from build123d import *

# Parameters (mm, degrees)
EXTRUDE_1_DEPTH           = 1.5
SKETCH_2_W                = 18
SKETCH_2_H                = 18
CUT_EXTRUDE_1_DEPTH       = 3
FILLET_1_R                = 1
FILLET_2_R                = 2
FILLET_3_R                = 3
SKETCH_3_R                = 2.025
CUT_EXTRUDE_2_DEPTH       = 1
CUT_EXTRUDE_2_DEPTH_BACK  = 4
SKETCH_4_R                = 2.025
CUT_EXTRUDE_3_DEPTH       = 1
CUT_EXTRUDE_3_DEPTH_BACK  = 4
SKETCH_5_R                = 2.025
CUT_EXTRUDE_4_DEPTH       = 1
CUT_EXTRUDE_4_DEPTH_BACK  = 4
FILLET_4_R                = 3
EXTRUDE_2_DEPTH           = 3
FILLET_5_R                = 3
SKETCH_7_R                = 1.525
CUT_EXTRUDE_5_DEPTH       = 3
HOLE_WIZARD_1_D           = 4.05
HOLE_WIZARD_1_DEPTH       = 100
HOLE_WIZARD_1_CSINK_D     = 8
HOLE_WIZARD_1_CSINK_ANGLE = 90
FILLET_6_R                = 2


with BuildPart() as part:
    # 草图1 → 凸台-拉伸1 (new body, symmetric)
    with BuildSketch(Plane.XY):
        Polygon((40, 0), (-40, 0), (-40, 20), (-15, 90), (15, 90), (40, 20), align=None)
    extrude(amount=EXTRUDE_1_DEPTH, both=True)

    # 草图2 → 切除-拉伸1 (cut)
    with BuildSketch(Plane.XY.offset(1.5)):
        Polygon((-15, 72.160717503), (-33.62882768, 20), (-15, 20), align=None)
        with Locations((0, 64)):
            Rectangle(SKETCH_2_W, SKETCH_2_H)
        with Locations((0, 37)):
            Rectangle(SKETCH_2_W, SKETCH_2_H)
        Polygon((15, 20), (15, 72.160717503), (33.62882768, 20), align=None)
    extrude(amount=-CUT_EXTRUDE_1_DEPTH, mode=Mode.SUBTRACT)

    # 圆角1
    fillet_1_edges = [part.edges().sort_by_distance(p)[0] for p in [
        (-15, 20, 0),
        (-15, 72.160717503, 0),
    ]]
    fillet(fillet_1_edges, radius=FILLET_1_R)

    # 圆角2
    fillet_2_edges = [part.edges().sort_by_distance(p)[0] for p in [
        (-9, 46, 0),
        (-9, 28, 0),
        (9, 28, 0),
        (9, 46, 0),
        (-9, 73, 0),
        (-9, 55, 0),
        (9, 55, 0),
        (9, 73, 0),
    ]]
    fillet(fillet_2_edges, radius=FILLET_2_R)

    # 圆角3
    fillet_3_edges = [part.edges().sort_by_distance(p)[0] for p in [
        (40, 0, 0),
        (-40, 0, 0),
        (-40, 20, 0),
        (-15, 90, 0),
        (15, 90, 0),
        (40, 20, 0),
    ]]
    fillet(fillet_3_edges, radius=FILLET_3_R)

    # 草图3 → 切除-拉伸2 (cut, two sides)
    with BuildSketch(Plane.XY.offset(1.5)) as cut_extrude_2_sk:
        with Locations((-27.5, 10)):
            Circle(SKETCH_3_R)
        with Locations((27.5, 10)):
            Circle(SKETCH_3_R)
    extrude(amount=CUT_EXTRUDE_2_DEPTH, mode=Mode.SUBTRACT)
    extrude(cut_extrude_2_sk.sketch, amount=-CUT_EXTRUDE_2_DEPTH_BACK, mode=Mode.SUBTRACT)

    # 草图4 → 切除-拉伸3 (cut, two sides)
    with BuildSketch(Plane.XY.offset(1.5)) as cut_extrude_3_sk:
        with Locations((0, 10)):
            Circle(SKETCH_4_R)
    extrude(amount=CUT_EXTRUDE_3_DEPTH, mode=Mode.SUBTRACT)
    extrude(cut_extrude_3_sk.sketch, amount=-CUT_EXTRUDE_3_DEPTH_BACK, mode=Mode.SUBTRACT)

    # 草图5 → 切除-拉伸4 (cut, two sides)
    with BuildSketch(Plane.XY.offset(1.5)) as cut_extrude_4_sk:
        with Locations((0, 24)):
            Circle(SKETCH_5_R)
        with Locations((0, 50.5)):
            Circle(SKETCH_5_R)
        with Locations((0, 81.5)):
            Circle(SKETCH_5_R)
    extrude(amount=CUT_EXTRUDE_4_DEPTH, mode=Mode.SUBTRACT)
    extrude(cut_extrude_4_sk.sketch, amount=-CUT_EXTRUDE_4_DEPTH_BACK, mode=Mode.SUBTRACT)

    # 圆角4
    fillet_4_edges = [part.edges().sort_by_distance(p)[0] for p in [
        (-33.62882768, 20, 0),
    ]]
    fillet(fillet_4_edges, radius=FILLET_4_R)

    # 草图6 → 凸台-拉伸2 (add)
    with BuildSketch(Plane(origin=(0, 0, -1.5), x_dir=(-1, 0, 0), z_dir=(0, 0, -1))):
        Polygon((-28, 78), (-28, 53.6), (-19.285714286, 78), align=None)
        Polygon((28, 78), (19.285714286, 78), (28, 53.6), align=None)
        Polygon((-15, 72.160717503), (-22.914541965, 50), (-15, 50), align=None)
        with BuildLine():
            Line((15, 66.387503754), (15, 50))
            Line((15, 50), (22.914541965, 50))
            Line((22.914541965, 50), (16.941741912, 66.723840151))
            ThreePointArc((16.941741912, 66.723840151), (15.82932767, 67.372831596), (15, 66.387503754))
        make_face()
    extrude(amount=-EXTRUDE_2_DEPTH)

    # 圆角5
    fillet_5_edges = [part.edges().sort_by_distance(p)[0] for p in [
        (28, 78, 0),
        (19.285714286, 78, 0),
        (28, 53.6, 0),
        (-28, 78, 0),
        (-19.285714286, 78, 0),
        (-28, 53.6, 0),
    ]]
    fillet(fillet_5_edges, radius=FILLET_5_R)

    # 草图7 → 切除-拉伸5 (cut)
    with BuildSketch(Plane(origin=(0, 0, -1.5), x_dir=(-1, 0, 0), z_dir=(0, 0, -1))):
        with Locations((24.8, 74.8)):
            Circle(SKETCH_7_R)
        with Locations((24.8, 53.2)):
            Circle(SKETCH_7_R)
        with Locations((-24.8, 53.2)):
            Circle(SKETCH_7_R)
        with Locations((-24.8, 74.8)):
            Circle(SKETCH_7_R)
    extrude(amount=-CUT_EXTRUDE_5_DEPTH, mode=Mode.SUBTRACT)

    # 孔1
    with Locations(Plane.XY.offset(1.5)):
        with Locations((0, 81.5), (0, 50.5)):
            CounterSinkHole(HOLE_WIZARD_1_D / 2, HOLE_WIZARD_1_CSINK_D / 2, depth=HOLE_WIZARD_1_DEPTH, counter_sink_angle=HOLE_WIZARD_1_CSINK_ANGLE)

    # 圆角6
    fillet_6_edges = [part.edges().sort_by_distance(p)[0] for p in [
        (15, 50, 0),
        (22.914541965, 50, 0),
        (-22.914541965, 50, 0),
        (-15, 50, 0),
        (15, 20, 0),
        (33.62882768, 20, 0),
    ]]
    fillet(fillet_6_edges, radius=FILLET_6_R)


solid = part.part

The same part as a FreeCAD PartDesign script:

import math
import FreeCAD as App
import Part
import Sketcher

V = App.Vector
Q = App.Units.Quantity


def edges_at(feature, points):
    """Names of the edges that pass closest to the given points."""
    edges = feature.Shape.Edges
    near = lambda p: min(range(len(edges)), key=lambda i: edges[i].distToShape(Part.Vertex(*p))[0])
    return sorted({f"Edge{near(p) + 1}" for p in points})


def add_polygon(sketch, points):
    """Adds a closed chain of lines whose ends are joined by coincident constraints."""
    first, n = sketch.GeometryCount, len(points)
    for a, b in zip(points, points[1:] + points[:1]):
        sketch.addGeometry(Part.LineSegment(App.Vector(*a, 0), App.Vector(*b, 0)), False)
    for i in range(n):
        sketch.addConstraint(Sketcher.Constraint("Coincident", first + i, 2, first + (i + 1) % n, 1))

doc = App.newDocument("Part")
body = doc.addObject("PartDesign::Body", "Body")

# Sketch on XY plane
sketch1 = body.newObject("Sketcher::SketchObject", "Sketch")
sketch1.AttachmentSupport = (doc.getObject("XY_Plane"), [""])
sketch1.MapMode = "FlatFace"
add_polygon(sketch1, [(-40, 0), (40, 0), (40, 20), (15, 90), (-15, 90), (-40, 20)])  # lines 0-5
sketch1.addConstraint(Sketcher.Constraint("Horizontal", 0))
sketch1.addConstraint(Sketcher.Constraint("Vertical", 1))
sketch1.addConstraint(Sketcher.Constraint("Horizontal", 3))
sketch1.addConstraint(Sketcher.Constraint("Vertical", 5))
sketch1.addConstraint(Sketcher.Constraint("Symmetric", 0, 2, 5, 2, -1, 1))
sketch1.addConstraint(Sketcher.Constraint("Horizontal", 1, 2, 4, 2))
sketch1.addConstraint(Sketcher.Constraint("Equal", 2, 4))
sketch1.addConstraint(Sketcher.Constraint("DistanceX", 0, 1, 0, 2, Q("80 mm")))
sketch1.addConstraint(Sketcher.Constraint("DistanceX", 3, 2, 3, 1, Q("30 mm")))
sketch1.addConstraint(Sketcher.Constraint("DistanceY", 1, 1, 1, 2, Q("20 mm")))
sketch1.addConstraint(Sketcher.Constraint("DistanceY", -1, 1, 2, 2, Q("90 mm")))
pad1 = body.newObject("PartDesign::Pad", "Pad")
pad1.Profile = sketch1
pad1.Length = 3
pad1.Midplane = True

# Sketch on XY plane
sketch2 = body.newObject("Sketcher::SketchObject", "Sketch001")
sketch2.AttachmentSupport = (doc.getObject("XY_Plane"), [""])
sketch2.MapMode = "FlatFace"
sketch2.AttachmentOffset = App.Placement(V(0, 0, 1.5), App.Rotation())
add_polygon(sketch2, [(-15, 72), (-34, 20), (-15, 20)])  # lines 0-2
add_polygon(sketch2, [(-9, 73), (-9, 55), (9, 55), (9, 73)])  # lines 3-6
add_polygon(sketch2, [(-9, 46), (-9, 28), (9, 28), (9, 46)])  # lines 7-10
add_polygon(sketch2, [(15, 72), (15, 20), (34, 20)])  # lines 11-13
sketch2.addConstraint(Sketcher.Constraint("Horizontal", 1))
sketch2.addConstraint(Sketcher.Constraint("Vertical", 2))
sketch2.addConstraint(Sketcher.Constraint("Vertical", 3))
sketch2.addConstraint(Sketcher.Constraint("Horizontal", 4))
sketch2.addConstraint(Sketcher.Constraint("Vertical", 5))
sketch2.addConstraint(Sketcher.Constraint("Horizontal", 6))
sketch2.addConstraint(Sketcher.Constraint("Vertical", 7))
sketch2.addConstraint(Sketcher.Constraint("Horizontal", 8))
sketch2.addConstraint(Sketcher.Constraint("Vertical", 9))
sketch2.addConstraint(Sketcher.Constraint("Horizontal", 10))
sketch2.addConstraint(Sketcher.Constraint("Vertical", 11))
sketch2.addConstraint(Sketcher.Constraint("Horizontal", 12))
sketch2.addConstraint(Sketcher.Constraint("Symmetric", 1, 2, 11, 2, -2))
sketch2.addConstraint(Sketcher.Constraint("Horizontal", 2, 2, 13, 2))
sketch2.addConstraint(Sketcher.Constraint("Vertical", 6, 2, 7, 2))
sketch2.addConstraint(Sketcher.Constraint("Vertical", 5, 2, 8, 2))
sketch2.addConstraint(Sketcher.Constraint("Equal", 1, 12))
sketch2.addConstraint(Sketcher.Constraint("Equal", 10, 3))
sketch2.addConstraint(Sketcher.Constraint("Equal", 5, 7))
sketch2.addConstraint(Sketcher.Constraint("DistanceX", 4, 1, 4, 2, Q("18 mm")))
sketch2.addConstraint(Sketcher.Constraint("DistanceY", -1, 1, 0, 2, Q("20 mm")))
sketch2.addConstraint(Sketcher.Constraint("DistanceX", 1, 2, -1, 1, Q("15 mm")))
sketch2.addConstraint(Sketcher.Constraint("DistanceX", 3, 2, -1, 1, Q("9 mm")))
sketch2.addConstraint(Sketcher.Constraint("DistanceY", -1, 1, 3, 2, Q("55 mm")))
sketch2.addConstraint(Sketcher.Constraint("DistanceY", -1, 1, 7, 2, Q("28 mm")))
sketch2.addConstraint(Sketcher.Constraint("DistanceX", 1, 1, 1, 2, Q("18.628828 mm")))
sketch2.addConstraint(Sketcher.Constraint("DistanceY", 2, 1, 2, 2, Q("52.160718 mm")))
pocket1 = body.newObject("PartDesign::Pocket", "Pocket")
pocket1.Profile = sketch2
pocket1.Length = 3
doc.recompute()

fillet = body.newObject("PartDesign::Fillet", "Fillet")
fillet.Base = (pocket1, edges_at(pocket1, [(-15, 20, 0), (-15, 72.161, 0)]))
fillet.Radius = 1
doc.recompute()

fillet2 = body.newObject("PartDesign::Fillet", "Fillet001")
fillet2.Base = (fillet, edges_at(fillet, [
    (-9, 46, 0),
    (-9, 28, 0),
    (9, 28, 0),
    (9, 46, 0),
    (-9, 73, 0),
    (-9, 55, 0),
    (9, 55, 0),
    (9, 73, 0),
]))
fillet2.Radius = 2
doc.recompute()

fillet3 = body.newObject("PartDesign::Fillet", "Fillet002")
fillet3.Base = (fillet2, edges_at(fillet2, [
    (40, 0, 0),
    (-40, 0, 0),
    (-40, 20, 0),
    (-15, 90, 0),
    (15, 90, 0),
    (40, 20, 0),
]))
fillet3.Radius = 3

# Sketch on XY plane
sketch3 = body.newObject("Sketcher::SketchObject", "Sketch002")
sketch3.AttachmentSupport = (doc.getObject("XY_Plane"), [""])
sketch3.MapMode = "FlatFace"
sketch3.AttachmentOffset = App.Placement(V(0, 0, 1.5), App.Rotation())
sketch3.addGeometry(Part.Circle(V(-27.5, 10, 0), V(0, 0, 1), 2), False)
sketch3.addGeometry(Part.Circle(V(27.5, 10, 0), V(0, 0, 1), 2), False)
sketch3.addConstraint(Sketcher.Constraint("Equal", 0, 1))
sketch3.addConstraint(Sketcher.Constraint("Symmetric", 0, 3, 1, 3, -2))
sketch3.addConstraint(Sketcher.Constraint("Diameter", 0, Q("4.05 mm")))
sketch3.addConstraint(Sketcher.Constraint("DistanceY", -1, 1, 0, 3, Q("10 mm")))
sketch3.addConstraint(Sketcher.Constraint("DistanceX", 0, 3, 1, 3, Q("55 mm")))
pocket2 = body.newObject("PartDesign::Pocket", "Pocket001")
pocket2.Profile = sketch3
pocket2.Type = "ThroughAll"
pocket2.Midplane = True

# Sketch on XY plane
sketch4 = body.newObject("Sketcher::SketchObject", "Sketch003")
sketch4.AttachmentSupport = (doc.getObject("XY_Plane"), [""])
sketch4.MapMode = "FlatFace"
sketch4.AttachmentOffset = App.Placement(V(0, 0, 1.5), App.Rotation())
sketch4.addGeometry(Part.Circle(V(0, 10, 0), V(0, 0, 1), 2), False)
sketch4.addConstraint(Sketcher.Constraint("PointOnObject", 0, 3, -2))
sketch4.addConstraint(Sketcher.Constraint("Diameter", 0, Q("4.05 mm")))
sketch4.addConstraint(Sketcher.Constraint("DistanceY", -1, 1, 0, 3, Q("10 mm")))
pocket3 = body.newObject("PartDesign::Pocket", "Pocket002")
pocket3.Profile = sketch4
pocket3.Type = "ThroughAll"
pocket3.Midplane = True

# Sketch on XY plane
sketch5 = body.newObject("Sketcher::SketchObject", "Sketch004")
sketch5.AttachmentSupport = (doc.getObject("XY_Plane"), [""])
sketch5.MapMode = "FlatFace"
sketch5.AttachmentOffset = App.Placement(V(0, 0, 1.5), App.Rotation())
sketch5.addGeometry(Part.Circle(V(0, 24, 0), V(0, 0, 1), 2), False)
sketch5.addGeometry(Part.Circle(V(0, 50.5, 0), V(0, 0, 1), 2), False)
sketch5.addGeometry(Part.Circle(V(0, 81.5, 0), V(0, 0, 1), 2), False)
sketch5.addConstraint(Sketcher.Constraint("Equal", 0, 1))
sketch5.addConstraint(Sketcher.Constraint("Equal", 1, 2))
sketch5.addConstraint(Sketcher.Constraint("PointOnObject", 0, 3, -2))
sketch5.addConstraint(Sketcher.Constraint("PointOnObject", 1, 3, -2))
sketch5.addConstraint(Sketcher.Constraint("PointOnObject", 2, 3, -2))
sketch5.addConstraint(Sketcher.Constraint("Diameter", 0, Q("4.05 mm")))
sketch5.addConstraint(Sketcher.Constraint("DistanceY", -1, 1, 0, 3, Q("24 mm")))
sketch5.addConstraint(Sketcher.Constraint("DistanceY", 1, 3, 2, 3, Q("31 mm")))
sketch5.addConstraint(Sketcher.Constraint("DistanceY", -1, 1, 1, 3, Q("50.5 mm")))
pocket4 = body.newObject("PartDesign::Pocket", "Pocket003")
pocket4.Profile = sketch5
pocket4.Type = "ThroughAll"
pocket4.Midplane = True
doc.recompute()

fillet4 = body.newObject("PartDesign::Fillet", "Fillet003")
fillet4.Base = (pocket4, edges_at(pocket4, [(-33.629, 20, 0)]))
fillet4.Radius = 3

# Sketch on XY plane
sketch6 = body.newObject("Sketcher::SketchObject", "Sketch005")
sketch6.AttachmentSupport = (doc.getObject("XY_Plane"), [""])
sketch6.MapMode = "FlatFace"
sketch6.AttachmentOffset = App.Placement(V(0, 0, -1.5), App.Rotation())
add_polygon(sketch6, [(28, 78), (28, 53.6), (19.3, 78)])  # lines 0-2
add_polygon(sketch6, [(-28, 78), (-19.3, 78), (-28, 53.6)])  # lines 3-5
add_polygon(sketch6, [(15, 72.2), (22.9, 50), (15, 50)])  # lines 6-8
sketch6.addGeometry(Part.LineSegment(V(-15, 66.4, 0), V(-15, 50, 0)), False)  # 9
sketch6.addGeometry(Part.LineSegment(V(-15, 50, 0), V(-22.9, 50, 0)), False)  # 10
sketch6.addGeometry(Part.LineSegment(V(-22.9, 50, 0), V(-16.9, 66.7, 0)), False)  # 11
sketch6.addGeometry(Part.ArcOfCircle(Part.Circle(V(-16, 66.4, 0), V(0, 0, 1), 1), math.radians(0), math.radians(160)), False)  # 12
sketch6.addConstraint(Sketcher.Constraint("Coincident", 9, 2, 10, 1))
sketch6.addConstraint(Sketcher.Constraint("Coincident", 10, 2, 11, 1))
sketch6.addConstraint(Sketcher.Constraint("Tangent", 11, 2, 12, 2))
sketch6.addConstraint(Sketcher.Constraint("Tangent", 12, 1, 9, 1))
sketch6.addConstraint(Sketcher.Constraint("Vertical", 0))
sketch6.addConstraint(Sketcher.Constraint("Horizontal", 2))
sketch6.addConstraint(Sketcher.Constraint("Horizontal", 3))
sketch6.addConstraint(Sketcher.Constraint("Vertical", 5))
sketch6.addConstraint(Sketcher.Constraint("Horizontal", 7))
sketch6.addConstraint(Sketcher.Constraint("Vertical", 8))
sketch6.addConstraint(Sketcher.Constraint("Vertical", 9))
sketch6.addConstraint(Sketcher.Constraint("Horizontal", 10))
sketch6.addConstraint(Sketcher.Constraint("Symmetric", 1, 2, 3, 2, -2))
sketch6.addConstraint(Sketcher.Constraint("Symmetric", 0, 2, 4, 2, -2))
sketch6.addConstraint(Sketcher.Constraint("Symmetric", 7, 2, 9, 2, -2))
sketch6.addConstraint(Sketcher.Constraint("Parallel", 1, 6))
sketch6.addConstraint(Sketcher.Constraint("Parallel", 4, 11))
sketch6.addConstraint(Sketcher.Constraint("Equal", 7, 10))
sketch6.addConstraint(Sketcher.Constraint("Radius", 12, Q("1 mm")))
sketch6.addConstraint(Sketcher.Constraint("DistanceY", 0, 2, 0, 1, Q("24.4 mm")))
sketch6.addConstraint(Sketcher.Constraint("DistanceX", 12, 3, -1, 1, Q("16 mm")))
sketch6.addConstraint(Sketcher.Constraint("DistanceX", -1, 1, 0, 2, Q("28 mm")))
sketch6.addConstraint(Sketcher.Constraint("DistanceY", -1, 1, 1, 2, Q("78 mm")))
sketch6.addConstraint(Sketcher.Constraint("DistanceY", -1, 1, 6, 2, Q("50 mm")))
sketch6.addConstraint(Sketcher.Constraint("DistanceX", 7, 2, 7, 1, Q("7.914542 mm")))
sketch6.addConstraint(Sketcher.Constraint("Distance", 11, Q("17.758411 mm")))
pad2 = body.newObject("PartDesign::Pad", "Pad001")
pad2.Profile = sketch6
pad2.Length = 3
doc.recompute()

fillet5 = body.newObject("PartDesign::Fillet", "Fillet004")
fillet5.Base = (pad2, edges_at(pad2, [
    (28, 78, 0),
    (19.286, 78, 0),
    (28, 53.6, 0),
    (-28, 78, 0),
    (-19.286, 78, 0),
    (-28, 53.6, 0),
]))
fillet5.Radius = 3

# Sketch on XY plane
sketch7 = body.newObject("Sketcher::SketchObject", "Sketch006")
sketch7.AttachmentSupport = (doc.getObject("XY_Plane"), [""])
sketch7.MapMode = "FlatFace"
sketch7.AttachmentOffset = App.Placement(V(0, 0, -1.5), App.Rotation())
sketch7.addGeometry(Part.Circle(V(-24.8, 74.8, 0), V(0, 0, 1), 1.5), False)
sketch7.addGeometry(Part.Circle(V(-24.8, 53.2, 0), V(0, 0, 1), 1.5), False)
sketch7.addGeometry(Part.Circle(V(24.8, 53.2, 0), V(0, 0, 1), 1.5), False)
sketch7.addGeometry(Part.Circle(V(24.8, 74.8, 0), V(0, 0, 1), 1.5), False)
sketch7.addConstraint(Sketcher.Constraint("Equal", 0, 1))
sketch7.addConstraint(Sketcher.Constraint("Equal", 1, 2))
sketch7.addConstraint(Sketcher.Constraint("Equal", 2, 3))
sketch7.addConstraint(Sketcher.Constraint("Symmetric", 1, 3, 2, 3, -2))
sketch7.addConstraint(Sketcher.Constraint("Symmetric", 0, 3, 3, 3, -2))
sketch7.addConstraint(Sketcher.Constraint("Vertical", 0, 3, 1, 3))
sketch7.addConstraint(Sketcher.Constraint("Diameter", 0, Q("3.05 mm")))
sketch7.addConstraint(Sketcher.Constraint("DistanceX", 0, 3, -1, 1, Q("24.8 mm")))
sketch7.addConstraint(Sketcher.Constraint("DistanceY", -1, 1, 0, 3, Q("74.8 mm")))
sketch7.addConstraint(Sketcher.Constraint("DistanceY", -1, 1, 1, 3, Q("53.2 mm")))
pocket5 = body.newObject("PartDesign::Pocket", "Pocket004")
pocket5.Profile = sketch7
pocket5.Length = 3
pocket5.Reversed = True

# Sketch on XY plane
sketch8 = body.newObject("Sketcher::SketchObject", "Sketch007")
sketch8.AttachmentSupport = (doc.getObject("XY_Plane"), [""])
sketch8.MapMode = "FlatFace"
sketch8.AttachmentOffset = App.Placement(V(0, 0, 1.5), App.Rotation())
sketch8.addGeometry(Part.Circle(V(0, 81.5, 0), V(0, 0, 1), 2), False)
sketch8.addGeometry(Part.Circle(V(0, 50.5, 0), V(0, 0, 1), 2), False)
sketch8.addConstraint(Sketcher.Constraint("Equal", 0, 1))
sketch8.addConstraint(Sketcher.Constraint("PointOnObject", 0, 3, -2))
sketch8.addConstraint(Sketcher.Constraint("PointOnObject", 1, 3, -2))
sketch8.addConstraint(Sketcher.Constraint("Diameter", 0, Q("4.05 mm")))
sketch8.addConstraint(Sketcher.Constraint("DistanceY", 1, 3, 0, 3, Q("31 mm")))
sketch8.addConstraint(Sketcher.Constraint("DistanceY", -1, 1, 0, 3, Q("81.5 mm")))
doc.recompute()
hole = body.newObject("PartDesign::Hole", "Hole")
hole.Profile = sketch8
hole.ThreadType = "None"
hole.Diameter = 4.05
hole.DepthType = "Dimension"
hole.Depth = 100
hole.DrillPoint = "Flat"
hole.HoleCutType = "Countersink"
hole.HoleCutDiameter = 8
hole.HoleCutCountersinkAngle = 90
doc.recompute()

fillet6 = body.newObject("PartDesign::Fillet", "Fillet005")
fillet6.Base = (hole, edges_at(hole, [
    (15, 50, 0),
    (22.915, 50, 0),
    (-22.915, 50, 0),
    (-15, 50, 0),
    (15, 20, 0),
    (33.629, 20, 0),
]))
fillet6.Radius = 2

doc.recompute()
